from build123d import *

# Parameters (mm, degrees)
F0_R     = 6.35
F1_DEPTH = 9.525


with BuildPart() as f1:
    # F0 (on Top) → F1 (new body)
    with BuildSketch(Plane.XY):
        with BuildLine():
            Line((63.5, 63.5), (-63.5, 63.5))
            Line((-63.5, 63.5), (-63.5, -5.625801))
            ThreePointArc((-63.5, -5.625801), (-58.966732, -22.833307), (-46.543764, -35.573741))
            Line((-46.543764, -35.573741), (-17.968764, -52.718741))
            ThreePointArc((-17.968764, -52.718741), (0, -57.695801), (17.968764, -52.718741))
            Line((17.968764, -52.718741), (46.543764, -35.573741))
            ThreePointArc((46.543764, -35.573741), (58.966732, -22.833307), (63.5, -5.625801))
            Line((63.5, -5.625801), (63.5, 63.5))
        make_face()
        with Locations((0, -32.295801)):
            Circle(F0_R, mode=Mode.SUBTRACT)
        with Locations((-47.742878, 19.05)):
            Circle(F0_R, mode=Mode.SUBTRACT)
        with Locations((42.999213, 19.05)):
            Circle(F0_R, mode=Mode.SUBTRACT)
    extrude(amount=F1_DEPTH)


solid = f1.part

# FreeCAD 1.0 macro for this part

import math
import FreeCAD as App
import Part
import Sketcher
from FreeCAD import Vector
Q = App.Units.Quantity

doc = App.newDocument("Part")
body = doc.addObject("PartDesign::Body", "Body")

# Sketch on XY plane
sketch1 = body.newObject("Sketcher::SketchObject", "Sketch")
sketch1.AttachmentSupport = (doc.getObject("XY_Plane"), [""])
sketch1.MapMode = "FlatFace"
sketch1.addGeometry([
    Part.LineSegment(Vector(64, 64, 0), Vector(-64, 64, 0)),  # 0
    Part.LineSegment(Vector(-64, 64, 0), Vector(-64, -6, 0)),  # 1
    Part.ArcOfCircle(Part.Circle(Vector(-29, -6, 0), Vector(0, 0, 1), 35), math.radians(180), math.radians(239)),  # 2
    Part.LineSegment(Vector(-47, -36, 0), Vector(-18, -53, 0)),  # 3
    Part.ArcOfCircle(Part.Circle(Vector(0, -23, 0), Vector(0, 0, 1), 35), math.radians(-121), math.radians(-59)),  # 4
    Part.LineSegment(Vector(18, -53, 0), Vector(47, -36, 0)),  # 5
    Part.ArcOfCircle(Part.Circle(Vector(29, -6, 0), Vector(0, 0, 1), 35), math.radians(-59), math.radians(0)),  # 6
    Part.LineSegment(Vector(64, -6, 0), Vector(64, 64, 0)),  # 7
    Part.Circle(Vector(0, -32, 0), Vector(0, 0, 1), 6),  # 8
    Part.Circle(Vector(-48, 19, 0), Vector(0, 0, 1), 6),  # 9
    Part.Circle(Vector(43, 19, 0), Vector(0, 0, 1), 6),  # 10
], False)
sketch1.addConstraint([
    Sketcher.Constraint("Coincident", 0, 2, 1, 1),
    Sketcher.Constraint("Tangent", 1, 2, 2, 1),
    Sketcher.Constraint("Tangent", 2, 2, 3, 1),
    Sketcher.Constraint("Tangent", 3, 2, 4, 1),
    Sketcher.Constraint("Tangent", 4, 2, 5, 1),
    Sketcher.Constraint("Tangent", 5, 2, 6, 1),
    Sketcher.Constraint("Tangent", 6, 2, 7, 1),
    Sketcher.Constraint("Coincident", 7, 2, 0, 1),
    Sketcher.Constraint("Horizontal", 0),
    Sketcher.Constraint("Vertical", 1),
    Sketcher.Constraint("Vertical", 7),
    Sketcher.Constraint("Equal", 2, 4),
    Sketcher.Constraint("Equal", 4, 6),
    Sketcher.Constraint("Equal", 8, 9),
    Sketcher.Constraint("Equal", 9, 10),
    Sketcher.Constraint("Symmetric", 2, 3, 6, 3, -2),
    Sketcher.Constraint("PointOnObject", 4, 3, -2),
    Sketcher.Constraint("PointOnObject", 8, 3, -2),
    Sketcher.Constraint("Horizontal", 9, 3, 10, 3),
    Sketcher.Constraint("Diameter", 8, Q("0.5 in")),
    Sketcher.Constraint("DistanceX", 0, 2, 0, 1, Q("5 in")),
    Sketcher.Constraint("Radius", 2, Q("1.3749999 in")),
    Sketcher.Constraint("DistanceY", -1, 1, 0, 2, Q("2.5 in")),
    Sketcher.Constraint("DistanceY", -1, 1, 9, 3, Q("0.75 in")),
    Sketcher.Constraint("DistanceY", 8, 3, 2, 3, Q("1.05 in")),
    Sketcher.Constraint("DistanceY", 4, 3, 2, 3, Q("0.6750001 in")),
    Sketcher.Constraint("DistanceY", 1, 2, 1, 1, 69.125801),
    Sketcher.Constraint("DistanceX", 9, 3, 6, 3, 76.317881),
    Sketcher.Constraint("DistanceX", 6, 3, 10, 3, 14.42421),
])
pad1 = body.newObject("PartDesign::Pad", "Pad")
pad1.Profile = sketch1
pad1.Length = Q("0.375 in")

doc.recompute()
